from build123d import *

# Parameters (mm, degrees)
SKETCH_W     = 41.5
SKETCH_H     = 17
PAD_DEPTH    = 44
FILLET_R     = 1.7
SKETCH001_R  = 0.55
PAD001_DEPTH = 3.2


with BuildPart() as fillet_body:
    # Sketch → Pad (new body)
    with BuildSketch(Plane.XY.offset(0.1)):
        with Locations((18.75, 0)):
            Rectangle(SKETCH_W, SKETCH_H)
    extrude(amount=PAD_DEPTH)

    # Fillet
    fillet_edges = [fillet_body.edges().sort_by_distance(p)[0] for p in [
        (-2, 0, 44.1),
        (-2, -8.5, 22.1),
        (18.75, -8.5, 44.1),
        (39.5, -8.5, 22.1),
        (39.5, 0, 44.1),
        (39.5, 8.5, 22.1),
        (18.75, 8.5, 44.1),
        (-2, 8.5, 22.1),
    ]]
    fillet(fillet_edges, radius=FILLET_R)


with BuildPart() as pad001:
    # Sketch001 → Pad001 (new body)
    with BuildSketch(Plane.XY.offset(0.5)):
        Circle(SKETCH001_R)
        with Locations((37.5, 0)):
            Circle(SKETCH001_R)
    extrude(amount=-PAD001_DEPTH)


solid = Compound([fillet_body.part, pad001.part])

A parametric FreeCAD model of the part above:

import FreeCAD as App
import Part
import Sketcher
from FreeCAD import Vector
Q = App.Units.Quantity


def edges_at(feature, points):
    """Names of the edges that pass closest to the given points."""
    edges = feature.Shape.Edges
    near = lambda p: min(range(len(edges)), key=lambda i: edges[i].distToShape(Part.Vertex(*p))[0])
    return sorted({f"Edge{near(p) + 1}" for p in points})

doc = App.newDocument("Part")
body = doc.addObject("PartDesign::Body", "Body")

sketch1 = body.newObject("Sketcher::SketchObject", "Sketch")
sketch1.AttachmentSupport = (doc.getObject("XY_Plane"), [""])
sketch1.MapMode = "FlatFace"
sketch1.AttachmentOffset = App.Placement(Vector(0, 0, 0.1), App.Rotation())
sketch1.addGeometry(Part.LineSegment(Vector(-2, 8, 0), Vector(-2, -8, 0)), False)
sketch1.addGeometry(Part.LineSegment(Vector(-2, -8, 0), Vector(40, -8, 0)), False)
sketch1.addGeometry(Part.LineSegment(Vector(40, -8, 0), Vector(40, 8, 0)), False)
sketch1.addGeometry(Part.LineSegment(Vector(40, 8, 0), Vector(-2, 8, 0)), False)
sketch1.addConstraint(Sketcher.Constraint("Coincident", 0, 2, 1, 1))
sketch1.addConstraint(Sketcher.Constraint("Coincident", 1, 2, 2, 1))
sketch1.addConstraint(Sketcher.Constraint("Coincident", 2, 2, 3, 1))
sketch1.addConstraint(Sketcher.Constraint("Coincident", 3, 2, 0, 1))
sketch1.addConstraint(Sketcher.Constraint("Vertical", 0))
sketch1.addConstraint(Sketcher.Constraint("Horizontal", 1))
sketch1.addConstraint(Sketcher.Constraint("Vertical", 2))
sketch1.addConstraint(Sketcher.Constraint("Horizontal", 3))
sketch1.addConstraint(Sketcher.Constraint("DistanceY", 0, 2, 0, 1, Q("17 mm")))
sketch1.addConstraint(Sketcher.Constraint("DistanceX", 1, 1, 1, 2, Q("41.5 mm")))
sketch1.addConstraint(Sketcher.Constraint("DistanceX", 0, 2, -1, 1, Q("2 mm")))
sketch1.addConstraint(Sketcher.Constraint("DistanceY", 0, 2, -1, 1, Q("8.5 mm")))
pad1 = body.newObject("PartDesign::Pad", "Pad")
pad1.Profile = sketch1
pad1.Length = 44
doc.recompute()

fillet = body.newObject("PartDesign::Fillet", "Fillet")
fillet.Base = (pad1, edges_at(pad1, [
    (-2, 0, 44.1),
    (-2, -8.5, 22.1),
    (18.75, -8.5, 44.1),
    (39.5, -8.5, 22.1),
    (39.5, 0, 44.1),
    (39.5, 8.5, 22.1),
    (18.75, 8.5, 44.1),
    (-2, 8.5, 22.1),
]))
fillet.Radius = 1.7
body2 = doc.addObject("PartDesign::Body", "Body001")
body2.AllowCompound = True

sketch2 = body2.newObject("Sketcher::SketchObject", "Sketch001")
sketch2.AttachmentSupport = (doc.getObject("XY_Plane001"), [""])
sketch2.MapMode = "FlatFace"
sketch2.AttachmentOffset = App.Placement(Vector(0, 0, 0.5), App.Rotation())
sketch2.addGeometry(Part.Circle(Vector(0, 0, 0), Vector(0, 0, 1), 0.6), False)
sketch2.addGeometry(Part.Circle(Vector(37.5, 0, 0), Vector(0, 0, 1), 0.6), False)
sketch2.addConstraint(Sketcher.Constraint("Coincident", 0, 3, -1, 1))
sketch2.addConstraint(Sketcher.Constraint("Equal", 0, 1))
sketch2.addConstraint(Sketcher.Constraint("PointOnObject", 1, 3, -1))
sketch2.addConstraint(Sketcher.Constraint("Diameter", 0, Q("1.1 mm")))
sketch2.addConstraint(Sketcher.Constraint("DistanceX", -1, 1, 1, 3, Q("37.5 mm")))
pad2 = body2.newObject("PartDesign::Pad", "Pad001")
pad2.Profile = sketch2
pad2.Length = 3.2
pad2.Reversed = True

doc.recompute()
